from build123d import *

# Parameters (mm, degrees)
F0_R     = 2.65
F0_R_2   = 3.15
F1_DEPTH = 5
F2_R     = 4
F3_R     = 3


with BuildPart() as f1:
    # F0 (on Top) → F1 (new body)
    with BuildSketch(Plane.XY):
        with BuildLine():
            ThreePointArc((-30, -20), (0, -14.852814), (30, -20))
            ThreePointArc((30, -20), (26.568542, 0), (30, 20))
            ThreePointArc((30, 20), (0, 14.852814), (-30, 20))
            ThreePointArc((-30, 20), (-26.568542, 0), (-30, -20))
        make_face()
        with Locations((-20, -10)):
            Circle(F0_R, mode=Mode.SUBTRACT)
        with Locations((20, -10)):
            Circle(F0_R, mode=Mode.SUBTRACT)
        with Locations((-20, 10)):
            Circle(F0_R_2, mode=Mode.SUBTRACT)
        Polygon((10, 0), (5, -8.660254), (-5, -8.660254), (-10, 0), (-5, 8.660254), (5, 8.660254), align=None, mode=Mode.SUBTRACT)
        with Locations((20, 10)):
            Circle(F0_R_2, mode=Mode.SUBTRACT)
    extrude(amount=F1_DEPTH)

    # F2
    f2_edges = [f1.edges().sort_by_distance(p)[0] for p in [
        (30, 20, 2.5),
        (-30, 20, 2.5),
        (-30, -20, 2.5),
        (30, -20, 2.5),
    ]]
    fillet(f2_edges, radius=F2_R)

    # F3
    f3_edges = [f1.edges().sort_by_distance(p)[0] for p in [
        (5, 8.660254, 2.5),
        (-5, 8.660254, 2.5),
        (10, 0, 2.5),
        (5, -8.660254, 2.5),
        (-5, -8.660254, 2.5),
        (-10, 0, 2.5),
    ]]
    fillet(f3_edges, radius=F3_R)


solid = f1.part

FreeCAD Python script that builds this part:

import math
import FreeCAD as App
import Part
import Sketcher
Q = App.Units.Quantity


def edges_at(feature, points):
    """Names of the edges that pass closest to the given points."""
    edges = feature.Shape.Edges
    near = lambda p: min(range(len(edges)), key=lambda i: edges[i].distToShape(Part.Vertex(*p))[0])
    return sorted({f"Edge{near(p) + 1}" for p in points})

doc = App.newDocument("Part")
body = doc.addObject("PartDesign::Body", "Body")

# Sketch on XY plane
sketch1 = doc.addObject("Sketcher::SketchObject", "Sketch")
body.addObject(sketch1)
sketch1.AttachmentSupport = (doc.XY_Plane, [""])
sketch1.MapMode = "FlatFace"
sketch1.addGeometry(Part.ArcOfCircle(Part.Circle(App.Vector(0, -104.9, 0), App.Vector(0, 0, 1), 90), math.radians(71), math.radians(109)), False)
sketch1.addGeometry(Part.ArcOfCircle(Part.Circle(App.Vector(86.6, 0, 0), App.Vector(0, 0, 1), 60), math.radians(161), math.radians(199)), False)
sketch1.addGeometry(Part.ArcOfCircle(Part.Circle(App.Vector(0, 104.9, 0), App.Vector(0, 0, 1), 90), math.radians(-109), math.radians(-71)), False)
sketch1.addGeometry(Part.ArcOfCircle(Part.Circle(App.Vector(-86.6, 0, 0), App.Vector(0, 0, 1), 60), math.radians(-19), math.radians(19)), False)
sketch1.addGeometry(Part.Circle(App.Vector(-20, -10, 0), App.Vector(0, 0, 1), 2.6), False)
sketch1.addGeometry(Part.Circle(App.Vector(20, -10, 0), App.Vector(0, 0, 1), 2.6), False)
sketch1.addGeometry(Part.LineSegment(App.Vector(5, 8.7, 0), App.Vector(10, 0, 0)), False)
sketch1.addGeometry(Part.LineSegment(App.Vector(10, 0, 0), App.Vector(5, -8.7, 0)), False)
sketch1.addGeometry(Part.LineSegment(App.Vector(5, -8.7, 0), App.Vector(-5, -8.7, 0)), False)
sketch1.addGeometry(Part.LineSegment(App.Vector(-5, -8.7, 0), App.Vector(-10, 0, 0)), False)
sketch1.addGeometry(Part.LineSegment(App.Vector(-10, 0, 0), App.Vector(-5, 8.7, 0)), False)
sketch1.addGeometry(Part.LineSegment(App.Vector(-5, 8.7, 0), App.Vector(5, 8.7, 0)), False)
sketch1.addGeometry(Part.Circle(App.Vector(-20, 10, 0), App.Vector(0, 0, 1), 3.1), False)
sketch1.addGeometry(Part.Circle(App.Vector(20, 10, 0), App.Vector(0, 0, 1), 3.1), False)
sketch1.addConstraint(Sketcher.Constraint("Coincident", 0, 1, 1, 2))
sketch1.addConstraint(Sketcher.Constraint("Coincident", 1, 1, 2, 2))
sketch1.addConstraint(Sketcher.Constraint("Coincident", 2, 1, 3, 2))
sketch1.addConstraint(Sketcher.Constraint("Coincident", 3, 1, 0, 2))
sketch1.addConstraint(Sketcher.Constraint("Coincident", 6, 2, 7, 1))
sketch1.addConstraint(Sketcher.Constraint("Coincident", 7, 2, 8, 1))
sketch1.addConstraint(Sketcher.Constraint("Coincident", 8, 2, 9, 1))
sketch1.addConstraint(Sketcher.Constraint("Coincident", 9, 2, 10, 1))
sketch1.addConstraint(Sketcher.Constraint("Coincident", 10, 2, 11, 1))
sketch1.addConstraint(Sketcher.Constraint("Coincident", 11, 2, 6, 1))
sketch1.addConstraint(Sketcher.Constraint("Horizontal", 8))
sketch1.addConstraint(Sketcher.Constraint("Horizontal", 11))
sketch1.addConstraint(Sketcher.Constraint("Equal", 0, 2))
sketch1.addConstraint(Sketcher.Constraint("Equal", 1, 3))
sketch1.addConstraint(Sketcher.Constraint("Equal", 4, 5))
sketch1.addConstraint(Sketcher.Constraint("Equal", 12, 13))
sketch1.addConstraint(Sketcher.Constraint("Symmetric", 0, 3, 2, 3, -1, 1))
sketch1.addConstraint(Sketcher.Constraint("Symmetric", 1, 3, 3, 3, -1, 1))
sketch1.addConstraint(Sketcher.Constraint("Symmetric", 5, 3, 12, 3, -1, 1))
sketch1.addConstraint(Sketcher.Constraint("Symmetric", 4, 3, 13, 3, -1, 1))
sketch1.addConstraint(Sketcher.Constraint("Symmetric", 6, 2, 9, 2, -1, 1))
sketch1.addConstraint(Sketcher.Constraint("Symmetric", 7, 2, 10, 2, -1, 1))
sketch1.addConstraint(Sketcher.Constraint("Symmetric", 4, 3, 5, 3, -2))
sketch1.addConstraint(Sketcher.Constraint("Symmetric", 1, 1, 2, 1, -2))
sketch1.addConstraint(Sketcher.Constraint("PointOnObject", 6, 2, -1))
sketch1.addConstraint(Sketcher.Constraint("Parallel", 6, 9))
sketch1.addConstraint(Sketcher.Constraint("Vertical", 8, 2, 10, 2))
sketch1.addConstraint(Sketcher.Constraint("Diameter", 4, Q("5.3 mm")))
sketch1.addConstraint(Sketcher.Constraint("Diameter", 12, Q("6.3 mm")))
sketch1.addConstraint(Sketcher.Constraint("DistanceX", 8, 2, 8, 1, Q("10 mm")))
sketch1.addConstraint(Sketcher.Constraint("Angle", 6, Q("-60 deg")))
sketch1.addConstraint(Sketcher.Constraint("Distance", 6, Q("10 mm")))
sketch1.addConstraint(Sketcher.Constraint("DistanceX", 4, 3, -1, 1, Q("20 mm")))
sketch1.addConstraint(Sketcher.Constraint("DistanceY", 4, 3, -1, 1, Q("10 mm")))
sketch1.addConstraint(Sketcher.Constraint("DistanceX", -1, 1, 0, 1, Q("30 mm")))
sketch1.addConstraint(Sketcher.Constraint("DistanceY", 0, 1, -1, 1, Q("20 mm")))
sketch1.addConstraint(Sketcher.Constraint("Radius", 1, Q("59.999992 mm")))
sketch1.addConstraint(Sketcher.Constraint("Radius", 0, Q("90.000004 mm")))
pad1 = doc.addObject("PartDesign::Pad", "Pad")
body.addObject(pad1)
pad1.Profile = sketch1
pad1.Length = 5
doc.recompute()

fillet = doc.addObject("PartDesign::Fillet", "Fillet")
body.addObject(fillet)
fillet.Base = (pad1, edges_at(pad1, [
    (30, 20, 2.5),
    (-30, 20, 2.5),
    (-30, -20, 2.5),
    (30, -20, 2.5),
]))
fillet.Radius = 4
doc.recompute()

fillet2 = doc.addObject("PartDesign::Fillet", "Fillet001")
body.addObject(fillet2)
fillet2.Base = (fillet, edges_at(fillet, [
    (5, 8.66, 2.5),
    (-5, 8.66, 2.5),
    (10, 0, 2.5),
    (5, -8.66, 2.5),
    (-5, -8.66, 2.5),
    (-10, 0, 2.5),
]))
fillet2.Radius = 3

doc.recompute()
